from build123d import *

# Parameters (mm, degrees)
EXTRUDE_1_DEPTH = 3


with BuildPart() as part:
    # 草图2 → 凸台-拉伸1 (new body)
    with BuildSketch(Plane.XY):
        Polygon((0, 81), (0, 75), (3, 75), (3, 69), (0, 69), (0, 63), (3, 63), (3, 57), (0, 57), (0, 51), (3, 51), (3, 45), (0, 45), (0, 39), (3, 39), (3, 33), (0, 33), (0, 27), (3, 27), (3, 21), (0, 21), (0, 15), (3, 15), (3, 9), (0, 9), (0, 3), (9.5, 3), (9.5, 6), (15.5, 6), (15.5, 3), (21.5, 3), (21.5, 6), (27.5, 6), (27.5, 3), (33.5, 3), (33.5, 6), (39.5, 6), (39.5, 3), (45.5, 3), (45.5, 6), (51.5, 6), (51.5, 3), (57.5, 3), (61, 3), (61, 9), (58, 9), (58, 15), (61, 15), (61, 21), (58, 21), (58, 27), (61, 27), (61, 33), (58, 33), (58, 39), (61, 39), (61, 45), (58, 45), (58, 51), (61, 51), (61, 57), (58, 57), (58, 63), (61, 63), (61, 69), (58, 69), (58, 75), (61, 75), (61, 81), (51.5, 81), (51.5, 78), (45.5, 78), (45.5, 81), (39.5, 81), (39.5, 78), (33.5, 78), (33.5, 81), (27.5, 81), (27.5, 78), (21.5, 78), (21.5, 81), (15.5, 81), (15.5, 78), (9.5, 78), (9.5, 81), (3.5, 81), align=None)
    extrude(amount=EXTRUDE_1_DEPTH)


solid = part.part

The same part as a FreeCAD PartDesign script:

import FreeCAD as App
import Part
import Sketcher


def add_polygon(sketch, points):
    """Adds a closed chain of lines whose ends are joined by coincident constraints."""
    first, n = sketch.GeometryCount, len(points)
    for a, b in zip(points, points[1:] + points[:1]):
        sketch.addGeometry(Part.LineSegment(App.Vector(*a, 0), App.Vector(*b, 0)), False)
    for i in range(n):
        sketch.addConstraint(Sketcher.Constraint("Coincident", first + i, 2, first + (i + 1) % n, 1))

doc = App.newDocument("Part")
body = doc.addObject("PartDesign::Body", "Body")

sketch1 = doc.addObject("Sketcher::SketchObject", "Sketch")
body.addObject(sketch1)
sketch1.AttachmentSupport = (doc.XY_Plane, [""])
sketch1.MapMode = "FlatFace"
add_polygon(sketch1, [(0, 81), (0, 75), (3, 75), (3, 69), (0, 69), (0, 63), (3, 63), (3, 57), (0, 57), (0, 51), (3, 51), (3, 45), (0, 45), (0, 39), (3, 39), (3, 33), (0, 33), (0, 27), (3, 27), (3, 21), (0, 21), (0, 15), (3, 15), (3, 9), (0, 9), (0, 3), (9.5, 3), (9.5, 6), (15.5, 6), (15.5, 3), (21.5, 3), (21.5, 6), (27.5, 6), (27.5, 3), (33.5, 3), (33.5, 6), (39.5, 6), (39.5, 3), (45.5, 3), (45.5, 6), (51.5, 6), (51.5, 3), (61, 3), (61, 9), (58, 9), (58, 15), (61, 15), (61, 21), (58, 21), (58, 27), (61, 27), (61, 33), (58, 33), (58, 39), (61, 39), (61, 45), (58, 45), (58, 51), (61, 51), (61, 57), (58, 57), (58, 63), (61, 63), (61, 69), (58, 69), (58, 75), (61, 75), (61, 81), (51.5, 81), (51.5, 78), (45.5, 78), (45.5, 81), (39.5, 81), (39.5, 78), (33.5, 78), (33.5, 81), (27.5, 81), (27.5, 78), (21.5, 78), (21.5, 81), (15.5, 81), (15.5, 78), (9.5, 78), (9.5, 81)])
sketch1.addConstraint(Sketcher.Constraint("Vertical", 0))
sketch1.addConstraint(Sketcher.Constraint("Horizontal", 1))
sketch1.addConstraint(Sketcher.Constraint("Vertical", 2))
sketch1.addConstraint(Sketcher.Constraint("Horizontal", 3))
sketch1.addConstraint(Sketcher.Constraint("Vertical", 4))
sketch1.addConstraint(Sketcher.Constraint("Horizontal", 5))
sketch1.addConstraint(Sketcher.Constraint("Vertical", 6))
sketch1.addConstraint(Sketcher.Constraint("Horizontal", 7))
sketch1.addConstraint(Sketcher.Constraint("Vertical", 8))
sketch1.addConstraint(Sketcher.Constraint("Horizontal", 9))
sketch1.addConstraint(Sketcher.Constraint("Vertical", 10))
sketch1.addConstraint(Sketcher.Constraint("Horizontal", 11))
sketch1.addConstraint(Sketcher.Constraint("Vertical", 12))
sketch1.addConstraint(Sketcher.Constraint("Horizontal", 13))
sketch1.addConstraint(Sketcher.Constraint("Vertical", 14))
sketch1.addConstraint(Sketcher.Constraint("Horizontal", 15))
sketch1.addConstraint(Sketcher.Constraint("Vertical", 16))
sketch1.addConstraint(Sketcher.Constraint("Horizontal", 17))
sketch1.addConstraint(Sketcher.Constraint("Vertical", 18))
sketch1.addConstraint(Sketcher.Constraint("Horizontal", 19))
sketch1.addConstraint(Sketcher.Constraint("Vertical", 20))
sketch1.addConstraint(Sketcher.Constraint("Horizontal", 21))
sketch1.addConstraint(Sketcher.Constraint("Vertical", 22))
sketch1.addConstraint(Sketcher.Constraint("Horizontal", 23))
sketch1.addConstraint(Sketcher.Constraint("Vertical", 24))
sketch1.addConstraint(Sketcher.Constraint("Horizontal", 25))
sketch1.addConstraint(Sketcher.Constraint("Vertical", 26))
sketch1.addConstraint(Sketcher.Constraint("Horizontal", 27))
sketch1.addConstraint(Sketcher.Constraint("Vertical", 28))
sketch1.addConstraint(Sketcher.Constraint("Horizontal", 29))
sketch1.addConstraint(Sketcher.Constraint("Vertical", 30))
sketch1.addConstraint(Sketcher.Constraint("Horizontal", 31))
sketch1.addConstraint(Sketcher.Constraint("Vertical", 32))
sketch1.addConstraint(Sketcher.Constraint("Horizontal", 33))
sketch1.addConstraint(Sketcher.Constraint("Vertical", 34))
sketch1.addConstraint(Sketcher.Constraint("Horizontal", 35))
sketch1.addConstraint(Sketcher.Constraint("Vertical", 36))
sketch1.addConstraint(Sketcher.Constraint("Horizontal", 37))
sketch1.addConstraint(Sketcher.Constraint("Vertical", 38))
sketch1.addConstraint(Sketcher.Constraint("Horizontal", 39))
sketch1.addConstraint(Sketcher.Constraint("Vertical", 40))
sketch1.addConstraint(Sketcher.Constraint("Horizontal", 41))
sketch1.addConstraint(Sketcher.Constraint("Vertical", 42))
sketch1.addConstraint(Sketcher.Constraint("Horizontal", 43))
sketch1.addConstraint(Sketcher.Constraint("Vertical", 44))
sketch1.addConstraint(Sketcher.Constraint("Horizontal", 45))
sketch1.addConstraint(Sketcher.Constraint("Vertical", 46))
sketch1.addConstraint(Sketcher.Constraint("Horizontal", 47))
sketch1.addConstraint(Sketcher.Constraint("Vertical", 48))
sketch1.addConstraint(Sketcher.Constraint("Horizontal", 49))
sketch1.addConstraint(Sketcher.Constraint("Vertical", 50))
sketch1.addConstraint(Sketcher.Constraint("Horizontal", 51))
sketch1.addConstraint(Sketcher.Constraint("Vertical", 52))
sketch1.addConstraint(Sketcher.Constraint("Horizontal", 53))
sketch1.addConstraint(Sketcher.Constraint("Vertical", 54))
sketch1.addConstraint(Sketcher.Constraint("Horizontal", 55))
sketch1.addConstraint(Sketcher.Constraint("Vertical", 56))
sketch1.addConstraint(Sketcher.Constraint("Horizontal", 57))
sketch1.addConstraint(Sketcher.Constraint("Vertical", 58))
sketch1.addConstraint(Sketcher.Constraint("Horizontal", 59))
sketch1.addConstraint(Sketcher.Constraint("Vertical", 60))
sketch1.addConstraint(Sketcher.Constraint("Horizontal", 61))
sketch1.addConstraint(Sketcher.Constraint("Vertical", 62))
sketch1.addConstraint(Sketcher.Constraint("Horizontal", 63))
sketch1.addConstraint(Sketcher.Constraint("Vertical", 64))
sketch1.addConstraint(Sketcher.Constraint("Horizontal", 65))
sketch1.addConstraint(Sketcher.Constraint("Vertical", 66))
sketch1.addConstraint(Sketcher.Constraint("Horizontal", 67))
sketch1.addConstraint(Sketcher.Constraint("Vertical", 68))
sketch1.addConstraint(Sketcher.Constraint("Horizontal", 69))
sketch1.addConstraint(Sketcher.Constraint("Vertical", 70))
sketch1.addConstraint(Sketcher.Constraint("Horizontal", 71))
sketch1.addConstraint(Sketcher.Constraint("Vertical", 72))
sketch1.addConstraint(Sketcher.Constraint("Horizontal", 73))
sketch1.addConstraint(Sketcher.Constraint("Vertical", 74))
sketch1.addConstraint(Sketcher.Constraint("Horizontal", 75))
sketch1.addConstraint(Sketcher.Constraint("Vertical", 76))
sketch1.addConstraint(Sketcher.Constraint("Horizontal", 77))
sketch1.addConstraint(Sketcher.Constraint("Vertical", 78))
sketch1.addConstraint(Sketcher.Constraint("Horizontal", 79))
sketch1.addConstraint(Sketcher.Constraint("Vertical", 80))
sketch1.addConstraint(Sketcher.Constraint("Horizontal", 81))
sketch1.addConstraint(Sketcher.Constraint("Vertical", 82))
sketch1.addConstraint(Sketcher.Constraint("Horizontal", 83))
sketch1.addConstraint(Sketcher.Constraint("PointOnObject", 0, 2, -2))
sketch1.addConstraint(Sketcher.Constraint("PointOnObject", 3, 2, -2))
sketch1.addConstraint(Sketcher.Constraint("PointOnObject", 7, 2, -2))
sketch1.addConstraint(Sketcher.Constraint("PointOnObject", 11, 2, -2))
sketch1.addConstraint(Sketcher.Constraint("PointOnObject", 15, 2, -2))
sketch1.addConstraint(Sketcher.Constraint("PointOnObject", 19, 2, -2))
sketch1.addConstraint(Sketcher.Constraint("PointOnObject", 23, 2, -2))
sketch1.addConstraint(Sketcher.Constraint("Horizontal", 25, 2, 28, 2))
sketch1.addConstraint(Sketcher.Constraint("Horizontal", 27, 2, 30, 2))
sketch1.addConstraint(Sketcher.Constraint("Horizontal", 29, 2, 32, 2))
sketch1.addConstraint(Sketcher.Constraint("Horizontal", 31, 2, 34, 2))
sketch1.addConstraint(Sketcher.Constraint("Horizontal", 33, 2, 36, 2))
sketch1.addConstraint(Sketcher.Constraint("Horizontal", 35, 2, 38, 2))
sketch1.addConstraint(Sketcher.Constraint("Horizontal", 37, 2, 40, 2))
sketch1.addConstraint(Sketcher.Constraint("Horizontal", 23, 2, 42, 2))
sketch1.addConstraint(Sketcher.Constraint("Horizontal", 21, 2, 44, 2))
sketch1.addConstraint(Sketcher.Constraint("Horizontal", 19, 2, 46, 2))
sketch1.addConstraint(Sketcher.Constraint("Horizontal", 17, 2, 48, 2))
sketch1.addConstraint(Sketcher.Constraint("Horizontal", 15, 2, 50, 2))
sketch1.addConstraint(Sketcher.Constraint("Horizontal", 13, 2, 52, 2))
sketch1.addConstraint(Sketcher.Constraint("Horizontal", 11, 2, 54, 2))
sketch1.addConstraint(Sketcher.Constraint("Horizontal", 9, 2, 56, 2))
sketch1.addConstraint(Sketcher.Constraint("Horizontal", 7, 2, 58, 2))
sketch1.addConstraint(Sketcher.Constraint("Horizontal", 5, 2, 60, 2))
sketch1.addConstraint(Sketcher.Constraint("Horizontal", 3, 2, 62, 2))
sketch1.addConstraint(Sketcher.Constraint("Horizontal", 1, 2, 64, 2))
sketch1.addConstraint(Sketcher.Constraint("Horizontal", 67, 2, 70, 2))
sketch1.addConstraint(Sketcher.Constraint("Horizontal", 69, 2, 72, 2))
sketch1.addConstraint(Sketcher.Constraint("Horizontal", 71, 2, 74, 2))
sketch1.addConstraint(Sketcher.Constraint("Horizontal", 73, 2, 76, 2))
sketch1.addConstraint(Sketcher.Constraint("Horizontal", 75, 2, 78, 2))
sketch1.addConstraint(Sketcher.Constraint("Horizontal", 77, 2, 80, 2))
sketch1.addConstraint(Sketcher.Constraint("Horizontal", 79, 2, 82, 2))
sketch1.addConstraint(Sketcher.Constraint("Vertical", 2, 2, 5, 2))
sketch1.addConstraint(Sketcher.Constraint("Vertical", 6, 2, 9, 2))
sketch1.addConstraint(Sketcher.Constraint("Vertical", 10, 2, 13, 2))
sketch1.addConstraint(Sketcher.Constraint("Vertical", 14, 2, 17, 2))
sketch1.addConstraint(Sketcher.Constraint("Vertical", 18, 2, 21, 2))
sketch1.addConstraint(Sketcher.Constraint("Vertical", 42, 2, 45, 2))
sketch1.addConstraint(Sketcher.Constraint("Vertical", 44, 2, 47, 2))
sketch1.addConstraint(Sketcher.Constraint("Vertical", 46, 2, 49, 2))
sketch1.addConstraint(Sketcher.Constraint("Vertical", 48, 2, 51, 2))
sketch1.addConstraint(Sketcher.Constraint("Vertical", 50, 2, 53, 2))
sketch1.addConstraint(Sketcher.Constraint("Vertical", 52, 2, 55, 2))
sketch1.addConstraint(Sketcher.Constraint("Vertical", 54, 2, 57, 2))
sketch1.addConstraint(Sketcher.Constraint("Vertical", 56, 2, 59, 2))
sketch1.addConstraint(Sketcher.Constraint("Vertical", 58, 2, 61, 2))
sketch1.addConstraint(Sketcher.Constraint("Vertical", 60, 2, 63, 2))
sketch1.addConstraint(Sketcher.Constraint("Vertical", 62, 2, 65, 2))
sketch1.addConstraint(Sketcher.Constraint("Vertical", 40, 2, 67, 2))
sketch1.addConstraint(Sketcher.Constraint("Vertical", 38, 2, 69, 2))
sketch1.addConstraint(Sketcher.Constraint("Vertical", 36, 2, 71, 2))
sketch1.addConstraint(Sketcher.Constraint("Vertical", 34, 2, 73, 2))
sketch1.addConstraint(Sketcher.Constraint("Vertical", 32, 2, 75, 2))
sketch1.addConstraint(Sketcher.Constraint("Vertical", 30, 2, 77, 2))
sketch1.addConstraint(Sketcher.Constraint("Vertical", 28, 2, 79, 2))
sketch1.addConstraint(Sketcher.Constraint("Vertical", 26, 2, 81, 2))
sketch1.addConstraint(Sketcher.Constraint("Equal", 27, 29))
sketch1.addConstraint(Sketcher.Constraint("Equal", 29, 31))
sketch1.addConstraint(Sketcher.Constraint("Equal", 31, 33))
sketch1.addConstraint(Sketcher.Constraint("Equal", 33, 35))
sketch1.addConstraint(Sketcher.Constraint("Equal", 35, 37))
sketch1.addConstraint(Sketcher.Constraint("Equal", 37, 39))
sketch1.addConstraint(Sketcher.Constraint("Equal", 25, 41))
sketch1.addConstraint(Sketcher.Constraint("Equal", 23, 43))
sketch1.addConstraint(Sketcher.Constraint("Equal", 81, 0))
sketch1.addConstraint(Sketcher.Constraint("Equal", 0, 2))
sketch1.addConstraint(Sketcher.Constraint("Equal", 2, 4))
sketch1.addConstraint(Sketcher.Constraint("Equal", 4, 6))
sketch1.addConstraint(Sketcher.Constraint("Equal", 6, 8))
sketch1.addConstraint(Sketcher.Constraint("Equal", 8, 10))
sketch1.addConstraint(Sketcher.Constraint("Equal", 10, 12))
sketch1.addConstraint(Sketcher.Constraint("Equal", 12, 14))
sketch1.addConstraint(Sketcher.Constraint("Equal", 14, 16))
sketch1.addConstraint(Sketcher.Constraint("Equal", 16, 18))
sketch1.addConstraint(Sketcher.Constraint("Equal", 18, 20))
sketch1.addConstraint(Sketcher.Constraint("Equal", 20, 22))
sketch1.addConstraint(Sketcher.Constraint("Equal", 22, 24))
sketch1.addConstraint(Sketcher.Constraint("Equal", 65, 26))
sketch1.addConstraint(Sketcher.Constraint("Equal", 40, 68))
sketch1.addConstraint(Sketcher.Constraint("DistanceX", 1, 1, 1, 2, 3.0))
sketch1.addConstraint(Sketcher.Constraint("DistanceX", 27, 1, 27, 2, 6.0))
sketch1.addConstraint(Sketcher.Constraint("DistanceX", 25, 1, 25, 2, 9.5))
sketch1.addConstraint(Sketcher.Constraint("DistanceY", -1, 1, 0, 2, 75.0))
pad1 = doc.addObject("PartDesign::Pad", "Pad")
body.addObject(pad1)
pad1.Profile = sketch1
pad1.Length = 3

doc.recompute()
